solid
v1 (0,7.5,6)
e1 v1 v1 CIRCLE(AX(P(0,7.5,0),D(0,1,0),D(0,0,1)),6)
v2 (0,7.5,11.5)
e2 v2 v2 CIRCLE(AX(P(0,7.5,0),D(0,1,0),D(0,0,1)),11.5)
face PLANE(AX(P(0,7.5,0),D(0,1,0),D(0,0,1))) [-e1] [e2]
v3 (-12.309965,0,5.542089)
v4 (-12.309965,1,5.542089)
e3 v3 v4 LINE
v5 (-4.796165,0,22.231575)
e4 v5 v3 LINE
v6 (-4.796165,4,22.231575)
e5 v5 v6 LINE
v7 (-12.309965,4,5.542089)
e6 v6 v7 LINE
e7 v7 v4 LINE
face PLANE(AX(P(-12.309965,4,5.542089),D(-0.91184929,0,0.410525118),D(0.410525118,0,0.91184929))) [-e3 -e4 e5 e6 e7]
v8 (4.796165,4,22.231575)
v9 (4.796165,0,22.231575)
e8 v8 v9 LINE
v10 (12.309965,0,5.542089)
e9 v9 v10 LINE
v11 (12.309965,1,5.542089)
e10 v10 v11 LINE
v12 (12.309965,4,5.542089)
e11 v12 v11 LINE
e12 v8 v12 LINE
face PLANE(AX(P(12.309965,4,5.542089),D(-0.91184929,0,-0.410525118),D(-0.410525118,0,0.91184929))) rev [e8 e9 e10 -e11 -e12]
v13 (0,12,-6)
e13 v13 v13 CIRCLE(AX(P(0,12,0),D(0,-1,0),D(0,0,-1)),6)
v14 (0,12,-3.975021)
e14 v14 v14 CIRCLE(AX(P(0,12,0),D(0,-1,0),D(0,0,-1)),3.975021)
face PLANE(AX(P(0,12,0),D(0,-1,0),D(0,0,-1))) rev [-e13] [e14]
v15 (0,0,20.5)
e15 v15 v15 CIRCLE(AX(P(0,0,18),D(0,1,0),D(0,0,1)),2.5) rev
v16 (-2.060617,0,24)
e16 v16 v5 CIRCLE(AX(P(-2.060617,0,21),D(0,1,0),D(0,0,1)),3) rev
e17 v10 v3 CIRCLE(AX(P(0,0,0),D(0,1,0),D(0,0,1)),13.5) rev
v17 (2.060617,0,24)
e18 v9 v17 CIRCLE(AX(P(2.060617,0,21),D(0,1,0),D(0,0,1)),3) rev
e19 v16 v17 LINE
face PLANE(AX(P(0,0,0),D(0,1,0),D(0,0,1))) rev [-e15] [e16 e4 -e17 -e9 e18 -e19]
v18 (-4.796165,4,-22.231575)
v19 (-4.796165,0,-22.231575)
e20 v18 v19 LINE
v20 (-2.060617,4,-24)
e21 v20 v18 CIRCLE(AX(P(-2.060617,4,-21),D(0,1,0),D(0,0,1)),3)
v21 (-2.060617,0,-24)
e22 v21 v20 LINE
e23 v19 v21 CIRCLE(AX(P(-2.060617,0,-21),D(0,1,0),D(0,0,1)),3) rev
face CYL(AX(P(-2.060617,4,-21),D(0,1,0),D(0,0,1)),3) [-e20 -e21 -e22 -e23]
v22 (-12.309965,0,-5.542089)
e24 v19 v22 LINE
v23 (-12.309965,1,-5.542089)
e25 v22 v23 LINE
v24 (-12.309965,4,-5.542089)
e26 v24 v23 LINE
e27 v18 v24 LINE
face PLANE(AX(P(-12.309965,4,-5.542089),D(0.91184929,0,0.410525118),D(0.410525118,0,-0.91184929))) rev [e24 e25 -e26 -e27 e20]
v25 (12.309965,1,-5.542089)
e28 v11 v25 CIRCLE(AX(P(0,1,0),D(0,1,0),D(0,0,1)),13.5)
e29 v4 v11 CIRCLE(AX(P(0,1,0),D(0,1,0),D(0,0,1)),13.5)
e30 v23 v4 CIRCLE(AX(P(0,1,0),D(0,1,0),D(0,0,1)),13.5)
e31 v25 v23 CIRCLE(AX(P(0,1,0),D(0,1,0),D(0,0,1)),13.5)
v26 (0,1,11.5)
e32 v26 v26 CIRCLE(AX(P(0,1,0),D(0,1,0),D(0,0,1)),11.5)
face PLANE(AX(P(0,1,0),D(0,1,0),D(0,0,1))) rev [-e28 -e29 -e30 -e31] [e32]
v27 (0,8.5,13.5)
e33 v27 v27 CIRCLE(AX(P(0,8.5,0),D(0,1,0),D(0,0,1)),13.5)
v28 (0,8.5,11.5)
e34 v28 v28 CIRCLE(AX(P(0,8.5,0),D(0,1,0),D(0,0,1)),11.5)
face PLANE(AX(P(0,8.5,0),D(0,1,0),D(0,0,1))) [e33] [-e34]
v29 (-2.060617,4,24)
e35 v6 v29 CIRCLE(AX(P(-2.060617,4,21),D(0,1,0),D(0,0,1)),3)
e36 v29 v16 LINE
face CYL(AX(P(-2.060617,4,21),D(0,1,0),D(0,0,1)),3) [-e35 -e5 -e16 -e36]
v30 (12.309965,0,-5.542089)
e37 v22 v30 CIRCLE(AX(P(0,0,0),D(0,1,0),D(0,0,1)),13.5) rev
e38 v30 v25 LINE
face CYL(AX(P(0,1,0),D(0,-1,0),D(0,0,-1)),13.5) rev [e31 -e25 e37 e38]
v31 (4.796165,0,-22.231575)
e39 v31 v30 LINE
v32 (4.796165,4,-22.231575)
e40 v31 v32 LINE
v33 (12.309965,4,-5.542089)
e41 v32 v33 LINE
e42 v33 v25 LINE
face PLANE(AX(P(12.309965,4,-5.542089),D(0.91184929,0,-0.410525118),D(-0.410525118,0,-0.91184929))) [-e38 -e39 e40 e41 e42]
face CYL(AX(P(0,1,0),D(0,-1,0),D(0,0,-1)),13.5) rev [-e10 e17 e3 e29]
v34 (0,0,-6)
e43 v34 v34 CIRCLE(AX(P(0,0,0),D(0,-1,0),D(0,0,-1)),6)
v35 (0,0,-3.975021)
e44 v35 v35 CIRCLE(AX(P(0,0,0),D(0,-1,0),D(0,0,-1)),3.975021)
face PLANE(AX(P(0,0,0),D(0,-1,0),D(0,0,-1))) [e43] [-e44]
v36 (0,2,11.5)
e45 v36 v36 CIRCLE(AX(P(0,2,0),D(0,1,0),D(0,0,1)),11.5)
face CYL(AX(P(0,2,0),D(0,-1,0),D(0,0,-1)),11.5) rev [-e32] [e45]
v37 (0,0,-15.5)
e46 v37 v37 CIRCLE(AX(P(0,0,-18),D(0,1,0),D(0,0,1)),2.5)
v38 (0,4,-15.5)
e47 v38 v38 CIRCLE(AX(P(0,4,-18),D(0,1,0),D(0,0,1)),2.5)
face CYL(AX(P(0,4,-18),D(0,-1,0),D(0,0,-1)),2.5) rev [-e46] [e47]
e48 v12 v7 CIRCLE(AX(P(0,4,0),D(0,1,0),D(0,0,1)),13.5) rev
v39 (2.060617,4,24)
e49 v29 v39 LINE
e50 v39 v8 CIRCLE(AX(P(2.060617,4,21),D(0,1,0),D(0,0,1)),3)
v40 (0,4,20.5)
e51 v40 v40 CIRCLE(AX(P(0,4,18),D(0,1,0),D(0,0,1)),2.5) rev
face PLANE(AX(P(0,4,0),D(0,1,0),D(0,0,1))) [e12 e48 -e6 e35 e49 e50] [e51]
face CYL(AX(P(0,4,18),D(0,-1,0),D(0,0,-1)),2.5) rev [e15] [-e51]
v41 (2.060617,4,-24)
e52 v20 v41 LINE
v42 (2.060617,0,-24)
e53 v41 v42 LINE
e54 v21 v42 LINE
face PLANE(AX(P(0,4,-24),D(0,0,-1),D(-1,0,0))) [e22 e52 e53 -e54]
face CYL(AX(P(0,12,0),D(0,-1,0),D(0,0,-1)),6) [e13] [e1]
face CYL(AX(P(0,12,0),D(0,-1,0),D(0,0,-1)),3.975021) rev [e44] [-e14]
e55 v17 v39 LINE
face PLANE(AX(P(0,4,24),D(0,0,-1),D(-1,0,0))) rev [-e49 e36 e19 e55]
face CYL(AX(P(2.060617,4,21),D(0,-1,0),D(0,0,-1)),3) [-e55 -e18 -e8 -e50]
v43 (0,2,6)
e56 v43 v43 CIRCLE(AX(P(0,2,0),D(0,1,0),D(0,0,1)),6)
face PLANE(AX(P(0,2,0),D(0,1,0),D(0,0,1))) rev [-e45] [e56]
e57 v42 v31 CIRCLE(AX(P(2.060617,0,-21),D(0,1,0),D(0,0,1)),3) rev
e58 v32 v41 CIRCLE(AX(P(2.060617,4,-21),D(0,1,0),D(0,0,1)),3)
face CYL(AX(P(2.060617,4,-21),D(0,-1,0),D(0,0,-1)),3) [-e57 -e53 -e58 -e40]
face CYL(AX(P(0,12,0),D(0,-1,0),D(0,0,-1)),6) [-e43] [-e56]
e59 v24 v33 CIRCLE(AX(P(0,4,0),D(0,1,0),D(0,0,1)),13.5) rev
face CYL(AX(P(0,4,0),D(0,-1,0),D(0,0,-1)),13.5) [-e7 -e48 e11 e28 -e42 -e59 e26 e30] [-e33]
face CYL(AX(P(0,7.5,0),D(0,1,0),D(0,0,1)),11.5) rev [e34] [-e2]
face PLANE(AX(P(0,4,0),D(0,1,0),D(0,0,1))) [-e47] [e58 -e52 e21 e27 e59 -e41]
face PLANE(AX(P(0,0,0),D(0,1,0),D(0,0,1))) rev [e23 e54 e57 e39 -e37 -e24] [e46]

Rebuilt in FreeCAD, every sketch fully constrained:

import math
import FreeCAD as App
import Part
import Sketcher

V = App.Vector


def edges_at(feature, points):
    """Names of the edges that pass closest to the given points."""
    edges = feature.Shape.Edges
    near = lambda p: min(range(len(edges)), key=lambda i: edges[i].distToShape(Part.Vertex(*p))[0])
    return sorted({f"Edge{near(p) + 1}" for p in points})

doc = App.newDocument("Part")
body = doc.addObject("PartDesign::Body", "Body")

# Sketch on XZ plane
sketch1 = body.newObject("Sketcher::SketchObject", "Sketch")
sketch1.AttachmentSupport = (doc.getObject("XZ_Plane"), [""])
sketch1.MapMode = "FlatFace"
sketch1.addGeometry([
    Part.LineSegment(V(4, -24, 0), V(-4, -24, 0)),  # 0
    Part.LineSegment(V(-4, -24, 0), V(-12.309965, -5.542089, 0)),  # 1
    Part.ArcOfCircle(Part.Circle(V(0, 0, 0), V(0, 0, 1), 13.5), math.radians(155.762174), math.radians(204.237826)),  # 2
    Part.LineSegment(V(-12.309965, 5.542089, 0), V(-4, 24, 0)),  # 3
    Part.LineSegment(V(-4, 24, 0), V(4, 24, 0)),  # 4
    Part.LineSegment(V(4, 24, 0), V(12.309965, 5.542089, 0)),  # 5
    Part.ArcOfCircle(Part.Circle(V(0, 0, 0), V(0, 0, 1), 13.5), math.radians(-24.237826), math.radians(24.237826)),  # 6
    Part.LineSegment(V(12.309965, -5.542089, 0), V(4, -24, 0)),  # 7
    Part.Circle(V(0, -18, 0), V(0, 0, 1), 2.5),  # 8
    Part.Circle(V(0, 0, 0), V(0, 0, 1), 4),  # 9
    Part.Circle(V(0, 18, 0), V(0, 0, 1), 2.5),  # 10
], False)
sketch1.addConstraint([
    Sketcher.Constraint("Coincident", 0, 2, 1, 1),
    Sketcher.Constraint("Tangent", 1, 2, 2, 2),
    Sketcher.Constraint("Tangent", 2, 1, 3, 1),
    Sketcher.Constraint("Coincident", 3, 2, 4, 1),
    Sketcher.Constraint("Coincident", 4, 2, 5, 1),
    Sketcher.Constraint("Tangent", 5, 2, 6, 2),
    Sketcher.Constraint("Tangent", 6, 1, 7, 1),
    Sketcher.Constraint("Coincident", 7, 2, 0, 1),
    Sketcher.Constraint("Horizontal", 0),
    Sketcher.Constraint("Horizontal", 4),
    Sketcher.Constraint("Coincident", 2, 3, -1, 1),
    Sketcher.Constraint("Coincident", 6, 3, -1, 1),
    Sketcher.Constraint("Coincident", 9, 3, -1, 1),
    Sketcher.Constraint("Equal", 2, 6),
    Sketcher.Constraint("Equal", 8, 10),
    Sketcher.Constraint("Symmetric", 8, 3, 10, 3, -1, 1),
    Sketcher.Constraint("Symmetric", 0, 2, 4, 2, -1, 1),
    Sketcher.Constraint("PointOnObject", 8, 3, -2),
    Sketcher.Constraint("Parallel", 3, 7),
    Sketcher.Constraint("Horizontal", 2, 1, 5, 2),
    Sketcher.Constraint("Diameter", 8, 5.0),
    Sketcher.Constraint("Diameter", 9, 8.0),
    Sketcher.Constraint("Radius", 2, 13.5),
    Sketcher.Constraint("DistanceX", 0, 2, 0, 1, 8.0),
    Sketcher.Constraint("DistanceY", 8, 3, -1, 1, 18.0),
    Sketcher.Constraint("DistanceY", 0, 2, -1, 1, 24.0),
])
pad1 = body.newObject("PartDesign::Pad", "Pad")
pad1.Profile = sketch1
pad1.Length = 4
pad1.Reversed = True

# Sketch on XZ plane
sketch2 = body.newObject("Sketcher::SketchObject", "Sketch001")
sketch2.AttachmentSupport = (doc.getObject("XZ_Plane"), [""])
sketch2.MapMode = "FlatFace"
sketch2.addGeometry([
    Part.Circle(V(0, 0, 0), V(0, 0, 1), 13.5),
    Part.Circle(V(0, 0, 0), V(0, 0, 1), 4),
], False)
sketch2.addConstraint([
    Sketcher.Constraint("Coincident", 0, 3, -1, 1),
    Sketcher.Constraint("Coincident", 1, 3, -1, 1),
    Sketcher.Constraint("Diameter", 0, 27.0),
    Sketcher.Constraint("Diameter", 1, 8.0),
])
pad2 = body.newObject("PartDesign::Pad", "Pad001")
pad2.Profile = sketch2
pad2.Length = 8.5
pad2.Reversed = True

# Sketch on XZ plane
sketch3 = body.newObject("Sketcher::SketchObject", "Sketch002")
sketch3.AttachmentSupport = (doc.getObject("XZ_Plane"), [""])
sketch3.MapMode = "FlatFace"
sketch3.addGeometry([
    Part.Circle(V(0, 0, 0), V(0, 0, 1), 13.5),
    Part.Circle(V(0, 0, 0), V(0, 0, 1), 4),
], False)
sketch3.addConstraint([
    Sketcher.Constraint("Coincident", 0, 3, -1, 1),
    Sketcher.Constraint("Coincident", 1, 3, -1, 1),
    Sketcher.Constraint("Diameter", 0, 27.0),
    Sketcher.Constraint("Diameter", 1, 8.0),
])
pocket1 = body.newObject("PartDesign::Pocket", "Pocket")
pocket1.Profile = sketch3
pocket1.Length = 1

# Sketch on XZ plane
sketch4 = body.newObject("Sketcher::SketchObject", "Sketch003")
sketch4.AttachmentSupport = (doc.getObject("XZ_Plane"), [""])
sketch4.MapMode = "FlatFace"
sketch4.AttachmentOffset = App.Placement(V(0, 0, -1), App.Rotation())
sketch4.addGeometry([
    Part.Circle(V(0, 0, 0), V(0, 0, 1), 6),
    Part.Circle(V(0, 0, 0), V(0, 0, 1), 3.975021),
], False)
sketch4.addConstraint([
    Sketcher.Constraint("Coincident", 0, 3, -1, 1),
    Sketcher.Constraint("Coincident", 1, 3, -1, 1),
    Sketcher.Constraint("Diameter", 0, 12.0),
    Sketcher.Constraint("Diameter", 1, 7.950042),
])
pad3 = body.newObject("PartDesign::Pad", "Pad002")
pad3.Profile = sketch4
pad3.Type = "TwoLengths"
pad3.Length = 1
pad3.Length2 = 11

# Sketch on XZ plane
sketch5 = body.newObject("Sketcher::SketchObject", "Sketch004")
sketch5.AttachmentSupport = (doc.getObject("XZ_Plane"), [""])
sketch5.MapMode = "FlatFace"
sketch5.AttachmentOffset = App.Placement(V(0, 0, -8.5), App.Rotation())
sketch5.addGeometry([
    Part.Circle(V(0, 0, 0), V(0, 0, 1), 11.5),
    Part.Circle(V(0, 0, 0), V(0, 0, 1), 6),
], False)
sketch5.addConstraint([
    Sketcher.Constraint("Coincident", 0, 3, -1, 1),
    Sketcher.Constraint("Coincident", 1, 3, -1, 1),
    Sketcher.Constraint("Diameter", 0, 23.0),
    Sketcher.Constraint("Diameter", 1, 12.0),
])
pocket2 = body.newObject("PartDesign::Pocket", "Pocket001")
pocket2.Profile = sketch5
pocket2.Length = 1
pocket2.Reversed = True
doc.recompute()

fillet = body.newObject("PartDesign::Fillet", "Fillet")
fillet.Base = (pocket2, edges_at(pocket2, [
    (-4, 2, -24),
    (4, 2, -24),
    (4, 2, 24),
    (-4, 2, 24),
]))
fillet.Radius = 3

# Sketch on XZ plane
sketch6 = body.newObject("Sketcher::SketchObject", "Sketch005")
sketch6.AttachmentSupport = (doc.getObject("XZ_Plane"), [""])
sketch6.MapMode = "FlatFace"
sketch6.AttachmentOffset = App.Placement(V(0, 0, -2), App.Rotation())
sketch6.addGeometry([
    Part.Circle(V(0, 0, 0), V(0, 0, 1), 11.5),
    Part.Circle(V(0, 0, 0), V(0, 0, 1), 6),
], False)
sketch6.addConstraint([
    Sketcher.Constraint("Coincident", 0, 3, -1, 1),
    Sketcher.Constraint("Coincident", 1, 3, -1, 1),
    Sketcher.Constraint("Diameter", 0, 23.0),
    Sketcher.Constraint("Diameter", 1, 12.0),
])
pocket3 = body.newObject("PartDesign::Pocket", "Pocket002")
pocket3.Profile = sketch6
pocket3.Length = 1
pocket3.Reversed = True

doc.recompute()
